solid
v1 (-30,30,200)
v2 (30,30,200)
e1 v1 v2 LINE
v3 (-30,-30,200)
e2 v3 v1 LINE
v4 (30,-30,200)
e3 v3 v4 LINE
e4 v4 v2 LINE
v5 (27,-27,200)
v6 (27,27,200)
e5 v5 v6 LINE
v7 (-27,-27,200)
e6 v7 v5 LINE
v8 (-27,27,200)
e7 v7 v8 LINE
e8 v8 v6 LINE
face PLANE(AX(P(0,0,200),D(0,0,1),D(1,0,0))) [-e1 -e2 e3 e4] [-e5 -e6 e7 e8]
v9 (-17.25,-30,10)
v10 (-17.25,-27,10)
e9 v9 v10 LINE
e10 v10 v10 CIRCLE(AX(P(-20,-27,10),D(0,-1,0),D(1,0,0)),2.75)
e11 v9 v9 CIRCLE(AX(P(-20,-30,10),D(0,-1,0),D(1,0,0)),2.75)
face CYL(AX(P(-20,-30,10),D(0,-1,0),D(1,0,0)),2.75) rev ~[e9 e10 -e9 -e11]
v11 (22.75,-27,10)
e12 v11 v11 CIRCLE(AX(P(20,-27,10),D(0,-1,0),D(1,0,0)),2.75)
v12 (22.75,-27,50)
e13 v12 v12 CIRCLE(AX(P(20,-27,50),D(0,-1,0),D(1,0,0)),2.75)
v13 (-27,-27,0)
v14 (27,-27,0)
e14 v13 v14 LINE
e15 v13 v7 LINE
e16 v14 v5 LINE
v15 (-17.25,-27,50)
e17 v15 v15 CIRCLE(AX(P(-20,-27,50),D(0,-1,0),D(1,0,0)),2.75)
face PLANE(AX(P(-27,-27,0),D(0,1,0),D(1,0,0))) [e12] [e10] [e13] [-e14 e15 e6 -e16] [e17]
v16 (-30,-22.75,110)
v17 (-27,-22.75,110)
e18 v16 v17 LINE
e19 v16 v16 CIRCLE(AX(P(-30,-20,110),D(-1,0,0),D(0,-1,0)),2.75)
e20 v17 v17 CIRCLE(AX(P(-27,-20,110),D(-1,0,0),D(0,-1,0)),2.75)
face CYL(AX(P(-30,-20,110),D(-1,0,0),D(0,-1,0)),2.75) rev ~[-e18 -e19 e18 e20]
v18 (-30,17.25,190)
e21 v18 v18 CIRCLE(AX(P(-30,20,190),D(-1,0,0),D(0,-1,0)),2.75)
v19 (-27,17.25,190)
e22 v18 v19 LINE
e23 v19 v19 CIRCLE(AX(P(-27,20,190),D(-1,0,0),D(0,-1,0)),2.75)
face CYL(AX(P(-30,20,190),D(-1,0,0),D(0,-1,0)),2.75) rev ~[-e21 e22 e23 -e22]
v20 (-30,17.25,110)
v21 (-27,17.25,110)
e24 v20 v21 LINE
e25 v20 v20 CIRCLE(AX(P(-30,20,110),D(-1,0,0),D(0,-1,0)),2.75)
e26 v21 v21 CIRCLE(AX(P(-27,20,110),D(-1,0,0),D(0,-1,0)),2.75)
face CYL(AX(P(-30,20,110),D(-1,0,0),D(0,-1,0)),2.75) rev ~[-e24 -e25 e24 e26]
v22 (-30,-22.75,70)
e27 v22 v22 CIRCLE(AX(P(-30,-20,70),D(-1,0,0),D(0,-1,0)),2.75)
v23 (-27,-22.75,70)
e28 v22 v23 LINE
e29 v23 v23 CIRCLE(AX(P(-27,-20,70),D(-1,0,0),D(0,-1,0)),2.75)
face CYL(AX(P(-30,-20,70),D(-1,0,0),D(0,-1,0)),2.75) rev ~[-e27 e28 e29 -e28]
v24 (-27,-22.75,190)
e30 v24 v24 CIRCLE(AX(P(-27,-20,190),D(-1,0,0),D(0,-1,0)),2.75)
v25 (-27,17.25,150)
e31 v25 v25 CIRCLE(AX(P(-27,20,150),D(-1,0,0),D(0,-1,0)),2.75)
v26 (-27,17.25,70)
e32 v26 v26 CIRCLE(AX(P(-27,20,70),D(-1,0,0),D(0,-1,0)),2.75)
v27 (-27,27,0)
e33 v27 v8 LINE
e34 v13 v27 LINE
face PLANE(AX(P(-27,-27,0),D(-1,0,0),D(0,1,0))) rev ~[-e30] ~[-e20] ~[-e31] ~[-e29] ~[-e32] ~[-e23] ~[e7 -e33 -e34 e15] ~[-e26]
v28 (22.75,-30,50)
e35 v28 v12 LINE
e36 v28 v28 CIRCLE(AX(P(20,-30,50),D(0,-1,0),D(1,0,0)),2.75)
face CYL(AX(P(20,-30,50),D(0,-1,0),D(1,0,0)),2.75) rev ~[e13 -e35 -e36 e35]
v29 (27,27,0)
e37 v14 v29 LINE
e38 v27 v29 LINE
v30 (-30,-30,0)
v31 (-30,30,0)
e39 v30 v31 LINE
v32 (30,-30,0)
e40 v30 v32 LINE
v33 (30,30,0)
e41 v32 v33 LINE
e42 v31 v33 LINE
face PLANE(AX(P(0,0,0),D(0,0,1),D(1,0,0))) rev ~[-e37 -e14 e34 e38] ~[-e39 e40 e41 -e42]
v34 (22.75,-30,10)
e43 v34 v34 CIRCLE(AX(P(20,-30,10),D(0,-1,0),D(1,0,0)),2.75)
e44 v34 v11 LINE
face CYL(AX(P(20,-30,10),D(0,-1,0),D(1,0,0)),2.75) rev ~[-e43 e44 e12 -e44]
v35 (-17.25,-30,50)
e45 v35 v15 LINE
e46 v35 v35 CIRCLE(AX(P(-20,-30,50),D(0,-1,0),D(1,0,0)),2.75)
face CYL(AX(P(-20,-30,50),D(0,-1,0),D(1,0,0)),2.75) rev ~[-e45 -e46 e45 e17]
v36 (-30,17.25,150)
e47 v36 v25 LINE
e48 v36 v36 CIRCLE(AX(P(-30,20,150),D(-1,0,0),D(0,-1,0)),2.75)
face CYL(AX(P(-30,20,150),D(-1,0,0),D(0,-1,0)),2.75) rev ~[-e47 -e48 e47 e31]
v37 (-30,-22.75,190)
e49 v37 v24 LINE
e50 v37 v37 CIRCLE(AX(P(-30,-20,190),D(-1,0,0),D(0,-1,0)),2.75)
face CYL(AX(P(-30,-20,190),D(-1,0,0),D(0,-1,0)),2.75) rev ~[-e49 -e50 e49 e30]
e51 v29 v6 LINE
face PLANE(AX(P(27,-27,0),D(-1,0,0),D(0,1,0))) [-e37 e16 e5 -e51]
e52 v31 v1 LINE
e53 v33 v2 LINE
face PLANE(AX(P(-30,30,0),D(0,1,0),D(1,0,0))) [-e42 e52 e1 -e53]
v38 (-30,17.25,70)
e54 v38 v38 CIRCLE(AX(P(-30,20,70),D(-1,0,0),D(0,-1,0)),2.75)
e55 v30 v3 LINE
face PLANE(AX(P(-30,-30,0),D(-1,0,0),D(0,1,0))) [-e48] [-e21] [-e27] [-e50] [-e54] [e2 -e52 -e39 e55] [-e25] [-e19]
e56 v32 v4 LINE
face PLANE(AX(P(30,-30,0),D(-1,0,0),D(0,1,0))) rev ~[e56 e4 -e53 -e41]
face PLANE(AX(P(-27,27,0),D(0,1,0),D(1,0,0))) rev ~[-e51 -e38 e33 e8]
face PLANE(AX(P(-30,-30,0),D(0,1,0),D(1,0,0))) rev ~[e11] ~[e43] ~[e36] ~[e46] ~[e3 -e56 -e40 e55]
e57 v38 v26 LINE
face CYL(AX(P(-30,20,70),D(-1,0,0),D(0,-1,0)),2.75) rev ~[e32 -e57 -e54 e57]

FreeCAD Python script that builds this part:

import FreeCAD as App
import Part
import Sketcher
from FreeCAD import Vector


def add_polygon(sketch, points):
    """Adds a closed chain of lines whose ends are joined by coincident constraints."""
    first, n = sketch.GeometryCount, len(points)
    for a, b in zip(points, points[1:] + points[:1]):
        sketch.addGeometry(Part.LineSegment(App.Vector(*a, 0), App.Vector(*b, 0)), False)
    for i in range(n):
        sketch.addConstraint(Sketcher.Constraint("Coincident", first + i, 2, first + (i + 1) % n, 1))

doc = App.newDocument("Part")
body = doc.addObject("PartDesign::Body", "Body")

# Sketch on XY plane
sketch1 = body.newObject("Sketcher::SketchObject", "Sketch")
sketch1.AttachmentSupport = (doc.getObject("XY_Plane"), [""])
sketch1.MapMode = "FlatFace"
add_polygon(sketch1, [(-30, 30), (-30, -30), (30, -30), (30, 30)])  # lines 0-3
add_polygon(sketch1, [(27, -27), (-27, -27), (-27, 27), (27, 27)])  # lines 4-7
sketch1.addConstraint(Sketcher.Constraint("Vertical", 0))
sketch1.addConstraint(Sketcher.Constraint("Horizontal", 1))
sketch1.addConstraint(Sketcher.Constraint("Vertical", 2))
sketch1.addConstraint(Sketcher.Constraint("Horizontal", 3))
sketch1.addConstraint(Sketcher.Constraint("Horizontal", 4))
sketch1.addConstraint(Sketcher.Constraint("Vertical", 5))
sketch1.addConstraint(Sketcher.Constraint("Horizontal", 6))
sketch1.addConstraint(Sketcher.Constraint("Vertical", 7))
sketch1.addConstraint(Sketcher.Constraint("Symmetric", 0, 2, 2, 2, -1, 1))
sketch1.addConstraint(Sketcher.Constraint("Symmetric", 4, 2, 6, 2, -1, 1))
sketch1.addConstraint(Sketcher.Constraint("Equal", 3, 0))
sketch1.addConstraint(Sketcher.Constraint("Equal", 6, 5))
sketch1.addConstraint(Sketcher.Constraint("DistanceX", 1, 1, 1, 2, 60.0))
sketch1.addConstraint(Sketcher.Constraint("DistanceX", 4, 2, 4, 1, 54.0))
pad1 = body.newObject("PartDesign::Pad", "Pad")
pad1.Profile = sketch1
pad1.Length = 200

# Sketch on XZ plane
sketch2 = body.newObject("Sketcher::SketchObject", "Sketch001")
sketch2.AttachmentSupport = (doc.getObject("XZ_Plane"), [""])
sketch2.MapMode = "FlatFace"
sketch2.AttachmentOffset = App.Placement(Vector(0, 0, 30), App.Rotation())
sketch2.addGeometry(Part.Circle(Vector(-20, 50, 0), Vector(0, 0, 1), 2.75), False)
sketch2.addGeometry(Part.Circle(Vector(20, 50, 0), Vector(0, 0, 1), 2.75), False)
sketch2.addGeometry(Part.Circle(Vector(-20, 10, 0), Vector(0, 0, 1), 2.75), False)
sketch2.addGeometry(Part.Circle(Vector(20, 10, 0), Vector(0, 0, 1), 2.75), False)
sketch2.addConstraint(Sketcher.Constraint("Equal", 0, 1))
sketch2.addConstraint(Sketcher.Constraint("Equal", 1, 2))
sketch2.addConstraint(Sketcher.Constraint("Equal", 2, 3))
sketch2.addConstraint(Sketcher.Constraint("Symmetric", 0, 3, 1, 3, -2))
sketch2.addConstraint(Sketcher.Constraint("Symmetric", 2, 3, 3, 3, -2))
sketch2.addConstraint(Sketcher.Constraint("Vertical", 0, 3, 2, 3))
sketch2.addConstraint(Sketcher.Constraint("Diameter", 0, 5.5))
sketch2.addConstraint(Sketcher.Constraint("DistanceX", 0, 3, -1, 1, 20.0))
sketch2.addConstraint(Sketcher.Constraint("DistanceY", -1, 1, 0, 3, 50.0))
sketch2.addConstraint(Sketcher.Constraint("DistanceY", -1, 1, 2, 3, 10.0))
pocket1 = body.newObject("PartDesign::Pocket", "Pocket")
pocket1.Profile = sketch2
pocket1.Length = 3

# Sketch on YZ plane
sketch3 = body.newObject("Sketcher::SketchObject", "Sketch002")
sketch3.AttachmentSupport = (doc.getObject("YZ_Plane"), [""])
sketch3.MapMode = "FlatFace"
sketch3.AttachmentOffset = App.Placement(Vector(0, 0, -30), App.Rotation())
sketch3.addGeometry(Part.Circle(Vector(20, 190, 0), Vector(0, 0, 1), 2.75), False)
sketch3.addGeometry(Part.Circle(Vector(-20, 190, 0), Vector(0, 0, 1), 2.75), False)
sketch3.addGeometry(Part.Circle(Vector(20, 150, 0), Vector(0, 0, 1), 2.75), False)
sketch3.addGeometry(Part.Circle(Vector(60, 150, 0), Vector(0, 0, 1), 2.75), False)
sketch3.addGeometry(Part.Circle(Vector(20, 110, 0), Vector(0, 0, 1), 2.75), False)
sketch3.addGeometry(Part.Circle(Vector(-20, 110, 0), Vector(0, 0, 1), 2.75), False)
sketch3.addGeometry(Part.Circle(Vector(20, 70, 0), Vector(0, 0, 1), 2.75), False)
sketch3.addGeometry(Part.Circle(Vector(-20, 70, 0), Vector(0, 0, 1), 2.75), False)
sketch3.addConstraint(Sketcher.Constraint("Equal", 0, 1))
sketch3.addConstraint(Sketcher.Constraint("Equal", 1, 2))
sketch3.addConstraint(Sketcher.Constraint("Equal", 2, 3))
sketch3.addConstraint(Sketcher.Constraint("Equal", 3, 4))
sketch3.addConstraint(Sketcher.Constraint("Equal", 4, 5))
sketch3.addConstraint(Sketcher.Constraint("Equal", 5, 6))
sketch3.addConstraint(Sketcher.Constraint("Equal", 6, 7))
sketch3.addConstraint(Sketcher.Constraint("Symmetric", 0, 3, 1, 3, -2))
sketch3.addConstraint(Sketcher.Constraint("Symmetric", 4, 3, 5, 3, -2))
sketch3.addConstraint(Sketcher.Constraint("Symmetric", 6, 3, 7, 3, -2))
sketch3.addConstraint(Sketcher.Constraint("Horizontal", 2, 3, 3, 3))
sketch3.addConstraint(Sketcher.Constraint("Vertical", 0, 3, 2, 3))
sketch3.addConstraint(Sketcher.Constraint("Vertical", 2, 3, 4, 3))
sketch3.addConstraint(Sketcher.Constraint("Vertical", 4, 3, 6, 3))
sketch3.addConstraint(Sketcher.Constraint("Diameter", 0, 5.5))
sketch3.addConstraint(Sketcher.Constraint("DistanceX", -1, 1, 0, 3, 20.0))
sketch3.addConstraint(Sketcher.Constraint("DistanceY", -1, 1, 0, 3, 190.0))
sketch3.addConstraint(Sketcher.Constraint("DistanceY", -1, 1, 2, 3, 150.0))
sketch3.addConstraint(Sketcher.Constraint("DistanceX", -1, 1, 3, 3, 60.0))
sketch3.addConstraint(Sketcher.Constraint("DistanceY", -1, 1, 4, 3, 110.0))
sketch3.addConstraint(Sketcher.Constraint("DistanceY", -1, 1, 6, 3, 70.0))
pocket2 = body.newObject("PartDesign::Pocket", "Pocket001")
pocket2.Profile = sketch3
pocket2.Length = 3
pocket2.Reversed = True

doc.recompute()
